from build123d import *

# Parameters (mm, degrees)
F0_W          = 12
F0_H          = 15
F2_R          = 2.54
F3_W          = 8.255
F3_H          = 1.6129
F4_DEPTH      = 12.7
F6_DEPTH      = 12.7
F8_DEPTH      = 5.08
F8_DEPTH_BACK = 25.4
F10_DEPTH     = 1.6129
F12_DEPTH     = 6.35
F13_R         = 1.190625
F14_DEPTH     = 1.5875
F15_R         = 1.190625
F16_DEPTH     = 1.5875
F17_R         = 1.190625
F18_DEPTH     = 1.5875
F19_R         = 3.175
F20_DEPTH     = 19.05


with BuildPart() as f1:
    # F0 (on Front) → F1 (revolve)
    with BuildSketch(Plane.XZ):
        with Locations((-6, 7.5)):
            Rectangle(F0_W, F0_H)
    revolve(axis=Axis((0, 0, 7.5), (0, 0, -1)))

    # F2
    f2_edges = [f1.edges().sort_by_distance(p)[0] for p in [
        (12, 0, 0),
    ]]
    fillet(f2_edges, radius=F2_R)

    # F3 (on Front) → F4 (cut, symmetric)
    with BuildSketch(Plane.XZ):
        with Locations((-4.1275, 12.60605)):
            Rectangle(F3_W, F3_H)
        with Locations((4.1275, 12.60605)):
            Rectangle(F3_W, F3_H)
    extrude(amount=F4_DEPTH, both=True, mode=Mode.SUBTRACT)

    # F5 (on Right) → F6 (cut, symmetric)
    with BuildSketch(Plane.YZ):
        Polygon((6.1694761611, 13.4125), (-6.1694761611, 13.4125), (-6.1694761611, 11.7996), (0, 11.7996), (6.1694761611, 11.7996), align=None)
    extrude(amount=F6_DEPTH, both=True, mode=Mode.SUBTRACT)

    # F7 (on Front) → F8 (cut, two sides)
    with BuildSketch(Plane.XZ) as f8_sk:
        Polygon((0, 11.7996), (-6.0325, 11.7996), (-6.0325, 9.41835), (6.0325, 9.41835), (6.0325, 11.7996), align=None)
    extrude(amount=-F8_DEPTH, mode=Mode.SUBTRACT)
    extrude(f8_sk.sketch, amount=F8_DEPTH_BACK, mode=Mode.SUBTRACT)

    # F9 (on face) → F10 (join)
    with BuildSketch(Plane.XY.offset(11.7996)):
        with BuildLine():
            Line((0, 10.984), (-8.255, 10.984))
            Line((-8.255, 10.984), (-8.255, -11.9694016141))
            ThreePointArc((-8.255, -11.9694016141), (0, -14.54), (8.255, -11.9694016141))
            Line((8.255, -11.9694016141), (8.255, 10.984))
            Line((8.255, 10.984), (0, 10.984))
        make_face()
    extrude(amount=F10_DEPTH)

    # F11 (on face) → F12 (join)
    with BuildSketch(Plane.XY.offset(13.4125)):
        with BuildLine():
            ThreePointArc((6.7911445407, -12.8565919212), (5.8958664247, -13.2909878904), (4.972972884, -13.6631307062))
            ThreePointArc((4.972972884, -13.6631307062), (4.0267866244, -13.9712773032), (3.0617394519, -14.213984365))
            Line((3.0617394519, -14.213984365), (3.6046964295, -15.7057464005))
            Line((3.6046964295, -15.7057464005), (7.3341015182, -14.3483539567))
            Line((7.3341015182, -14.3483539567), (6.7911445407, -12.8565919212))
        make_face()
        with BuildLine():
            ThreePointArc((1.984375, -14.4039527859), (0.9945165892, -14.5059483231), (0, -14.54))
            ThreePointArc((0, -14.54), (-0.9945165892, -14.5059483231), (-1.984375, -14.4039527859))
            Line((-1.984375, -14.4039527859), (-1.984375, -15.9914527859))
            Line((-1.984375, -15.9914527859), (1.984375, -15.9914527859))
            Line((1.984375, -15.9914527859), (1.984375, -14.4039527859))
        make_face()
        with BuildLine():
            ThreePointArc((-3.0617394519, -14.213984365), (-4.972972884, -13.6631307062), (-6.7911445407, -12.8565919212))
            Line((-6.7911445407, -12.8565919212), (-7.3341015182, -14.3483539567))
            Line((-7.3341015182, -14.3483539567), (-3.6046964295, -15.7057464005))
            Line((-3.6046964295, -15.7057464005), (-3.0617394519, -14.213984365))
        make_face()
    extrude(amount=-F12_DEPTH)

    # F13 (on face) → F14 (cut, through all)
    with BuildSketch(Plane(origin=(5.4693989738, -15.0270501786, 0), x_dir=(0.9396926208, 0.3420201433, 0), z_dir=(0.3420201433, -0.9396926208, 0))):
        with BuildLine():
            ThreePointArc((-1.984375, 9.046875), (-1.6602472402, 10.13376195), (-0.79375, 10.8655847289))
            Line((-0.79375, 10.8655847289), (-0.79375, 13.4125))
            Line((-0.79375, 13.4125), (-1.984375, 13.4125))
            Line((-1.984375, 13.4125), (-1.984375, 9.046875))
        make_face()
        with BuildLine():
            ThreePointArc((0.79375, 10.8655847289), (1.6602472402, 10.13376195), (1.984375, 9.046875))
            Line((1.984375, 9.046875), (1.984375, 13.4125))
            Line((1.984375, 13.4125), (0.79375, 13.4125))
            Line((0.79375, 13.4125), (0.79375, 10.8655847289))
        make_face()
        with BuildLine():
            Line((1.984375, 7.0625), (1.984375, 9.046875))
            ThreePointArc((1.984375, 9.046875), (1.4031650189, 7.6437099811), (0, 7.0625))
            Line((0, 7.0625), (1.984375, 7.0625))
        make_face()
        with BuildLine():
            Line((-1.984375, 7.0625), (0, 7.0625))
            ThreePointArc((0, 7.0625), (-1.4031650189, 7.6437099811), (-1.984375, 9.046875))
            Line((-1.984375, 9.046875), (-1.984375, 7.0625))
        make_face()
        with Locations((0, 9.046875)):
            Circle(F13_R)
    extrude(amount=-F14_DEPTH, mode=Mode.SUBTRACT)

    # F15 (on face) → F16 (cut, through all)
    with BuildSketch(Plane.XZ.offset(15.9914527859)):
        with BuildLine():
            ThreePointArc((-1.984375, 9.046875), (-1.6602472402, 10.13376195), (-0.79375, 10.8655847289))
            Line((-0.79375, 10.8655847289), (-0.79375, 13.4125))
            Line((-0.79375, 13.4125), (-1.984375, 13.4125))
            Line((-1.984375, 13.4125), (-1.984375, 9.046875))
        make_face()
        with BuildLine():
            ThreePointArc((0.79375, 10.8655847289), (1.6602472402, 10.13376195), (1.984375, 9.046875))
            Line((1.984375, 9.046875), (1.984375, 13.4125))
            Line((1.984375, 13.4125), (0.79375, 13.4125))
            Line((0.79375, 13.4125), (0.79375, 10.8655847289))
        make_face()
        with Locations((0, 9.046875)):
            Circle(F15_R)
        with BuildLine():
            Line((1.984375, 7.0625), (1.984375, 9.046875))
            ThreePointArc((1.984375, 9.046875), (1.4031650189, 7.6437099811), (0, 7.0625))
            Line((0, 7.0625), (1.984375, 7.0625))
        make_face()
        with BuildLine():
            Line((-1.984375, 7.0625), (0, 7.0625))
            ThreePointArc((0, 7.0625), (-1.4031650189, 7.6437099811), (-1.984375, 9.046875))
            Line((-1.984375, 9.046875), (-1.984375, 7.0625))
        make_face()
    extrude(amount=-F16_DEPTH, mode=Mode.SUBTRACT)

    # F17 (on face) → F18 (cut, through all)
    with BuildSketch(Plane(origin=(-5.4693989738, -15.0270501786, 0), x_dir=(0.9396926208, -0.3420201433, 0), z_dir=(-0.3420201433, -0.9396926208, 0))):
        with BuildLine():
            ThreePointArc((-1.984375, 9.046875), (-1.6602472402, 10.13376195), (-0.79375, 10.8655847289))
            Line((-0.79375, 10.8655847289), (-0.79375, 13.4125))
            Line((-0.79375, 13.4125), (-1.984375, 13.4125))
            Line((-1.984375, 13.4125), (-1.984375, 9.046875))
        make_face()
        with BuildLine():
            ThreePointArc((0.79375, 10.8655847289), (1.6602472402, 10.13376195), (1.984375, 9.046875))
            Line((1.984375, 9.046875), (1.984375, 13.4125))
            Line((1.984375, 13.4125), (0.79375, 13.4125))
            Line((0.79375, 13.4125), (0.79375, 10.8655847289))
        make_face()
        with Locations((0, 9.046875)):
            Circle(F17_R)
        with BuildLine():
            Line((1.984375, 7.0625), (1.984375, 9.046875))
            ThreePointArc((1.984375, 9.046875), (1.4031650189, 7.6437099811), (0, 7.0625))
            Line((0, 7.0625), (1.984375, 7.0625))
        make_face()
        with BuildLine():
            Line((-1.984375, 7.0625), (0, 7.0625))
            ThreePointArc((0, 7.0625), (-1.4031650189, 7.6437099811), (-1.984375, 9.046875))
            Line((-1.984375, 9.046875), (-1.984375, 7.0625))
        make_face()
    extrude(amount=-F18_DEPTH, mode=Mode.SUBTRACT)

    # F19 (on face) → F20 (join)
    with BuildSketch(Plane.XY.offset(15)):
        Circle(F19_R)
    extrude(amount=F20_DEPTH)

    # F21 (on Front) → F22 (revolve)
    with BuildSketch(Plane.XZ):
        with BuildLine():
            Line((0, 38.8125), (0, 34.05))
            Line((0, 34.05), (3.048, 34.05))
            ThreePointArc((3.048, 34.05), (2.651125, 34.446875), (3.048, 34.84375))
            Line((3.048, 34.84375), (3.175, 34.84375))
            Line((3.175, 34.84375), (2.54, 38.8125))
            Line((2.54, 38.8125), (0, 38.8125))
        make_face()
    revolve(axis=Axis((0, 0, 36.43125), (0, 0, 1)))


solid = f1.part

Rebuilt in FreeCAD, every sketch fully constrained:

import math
import FreeCAD as App
import Part
import Sketcher
Q = App.Units.Quantity


def edges_at(feature, points):
    """Names of the edges that pass closest to the given points."""
    edges = feature.Shape.Edges
    near = lambda p: min(range(len(edges)), key=lambda i: edges[i].distToShape(Part.Vertex(*p))[0])
    return sorted({f"Edge{near(p) + 1}" for p in points})


def add_polygon(sketch, points):
    """Adds a closed chain of lines whose ends are joined by coincident constraints."""
    first, n = sketch.GeometryCount, len(points)
    for a, b in zip(points, points[1:] + points[:1]):
        sketch.addGeometry(Part.LineSegment(App.Vector(*a, 0), App.Vector(*b, 0)), False)
    for i in range(n):
        sketch.addConstraint(Sketcher.Constraint("Coincident", first + i, 2, first + (i + 1) % n, 1))

doc = App.newDocument("Part")
body = doc.addObject("PartDesign::Body", "Body")

sketch1 = body.newObject("Sketcher::SketchObject", "Sketch")
sketch1.AttachmentSupport = (doc.getObject("XZ_Plane"), [""])
sketch1.MapMode = "FlatFace"
add_polygon(sketch1, [(-12, 15), (-12, 0), (0, 0), (0, 15)])
sketch1.addConstraint(Sketcher.Constraint("Vertical", 0))
sketch1.addConstraint(Sketcher.Constraint("Horizontal", 1))
sketch1.addConstraint(Sketcher.Constraint("Vertical", 2))
sketch1.addConstraint(Sketcher.Constraint("Horizontal", 3))
sketch1.addConstraint(Sketcher.Constraint("Coincident", 1, 2, -1, 1))
sketch1.addConstraint(Sketcher.Constraint("DistanceX", 1, 1, 1, 2, Q("12 mm")))
sketch1.addConstraint(Sketcher.Constraint("DistanceY", 0, 2, 0, 1, Q("15 mm")))
revolution = body.newObject("PartDesign::Revolution", "Revolution")
revolution.Profile = sketch1
revolution.ReferenceAxis = (sketch1, ["V_Axis"])
revolution.Angle = 360
doc.recompute()

fillet = body.newObject("PartDesign::Fillet", "Fillet")
fillet.Base = (revolution, edges_at(revolution, [(12, 0, 0)]))
fillet.Radius = Q("0.1 in")

sketch2 = body.newObject("Sketcher::SketchObject", "Sketch001")
sketch2.AttachmentSupport = (doc.getObject("XZ_Plane"), [""])
sketch2.MapMode = "FlatFace"
add_polygon(sketch2, [(-8.3, 13.4), (-8.3, 11.8), (8.3, 11.8), (8.3, 13.4)])
sketch2.addConstraint(Sketcher.Constraint("Vertical", 0))
sketch2.addConstraint(Sketcher.Constraint("Horizontal", 1))
sketch2.addConstraint(Sketcher.Constraint("Vertical", 2))
sketch2.addConstraint(Sketcher.Constraint("Horizontal", 3))
sketch2.addConstraint(Sketcher.Constraint("DistanceX", 1, 1, 1, 2, Q("0.65 in")))
sketch2.addConstraint(Sketcher.Constraint("DistanceY", 0, 2, 0, 1, Q("0.0635 in")))
sketch2.addConstraint(Sketcher.Constraint("DistanceX", 0, 2, -1, 1, Q("0.325 in")))
sketch2.addConstraint(Sketcher.Constraint("DistanceY", -1, 1, 0, 2, Q("11.7996 mm")))
pocket1 = body.newObject("PartDesign::Pocket", "Pocket")
pocket1.Profile = sketch2
pocket1.Length = Q("1 in")
pocket1.Midplane = True

sketch3 = body.newObject("Sketcher::SketchObject", "Sketch002")
sketch3.AttachmentSupport = (doc.getObject("YZ_Plane"), [""])
sketch3.MapMode = "FlatFace"
add_polygon(sketch3, [(6.2, 13.4), (-6.2, 13.4), (-6.2, 11.8), (6.2, 11.8)])
sketch3.addConstraint(Sketcher.Constraint("Horizontal", 0))
sketch3.addConstraint(Sketcher.Constraint("Vertical", 1))
sketch3.addConstraint(Sketcher.Constraint("Horizontal", 2))
sketch3.addConstraint(Sketcher.Constraint("Vertical", 3))
sketch3.addConstraint(Sketcher.Constraint("DistanceY", 1, 2, 1, 1, Q("0.0635 in")))
sketch3.addConstraint(Sketcher.Constraint("DistanceY", -1, 1, 0, 2, Q("13.4125 mm")))
sketch3.addConstraint(Sketcher.Constraint("DistanceX", 0, 2, 0, 1, Q("12.338952 mm")))
sketch3.addConstraint(Sketcher.Constraint("DistanceX", 0, 2, -1, 1, Q("6.169476 mm")))
pocket2 = body.newObject("PartDesign::Pocket", "Pocket001")
pocket2.Profile = sketch3
pocket2.Length = Q("1 in")
pocket2.Midplane = True

sketch4 = body.newObject("Sketcher::SketchObject", "Sketch003")
sketch4.AttachmentSupport = (doc.getObject("XZ_Plane"), [""])
sketch4.MapMode = "FlatFace"
add_polygon(sketch4, [(-6, 11.8), (-6, 9.4), (6, 9.4), (6, 11.8)])
sketch4.addConstraint(Sketcher.Constraint("Vertical", 0))
sketch4.addConstraint(Sketcher.Constraint("Horizontal", 1))
sketch4.addConstraint(Sketcher.Constraint("Vertical", 2))
sketch4.addConstraint(Sketcher.Constraint("Horizontal", 3))
sketch4.addConstraint(Sketcher.Constraint("DistanceX", 1, 1, 1, 2, Q("0.475 in")))
sketch4.addConstraint(Sketcher.Constraint("DistanceY", 0, 2, 0, 1, Q("0.09375 in")))
sketch4.addConstraint(Sketcher.Constraint("DistanceX", 0, 2, -1, 1, Q("0.2375 in")))
sketch4.addConstraint(Sketcher.Constraint("DistanceY", -1, 1, 2, 2, Q("11.7996 mm")))
pocket3 = body.newObject("PartDesign::Pocket", "Pocket002")
pocket3.Profile = sketch4
pocket3.Type = "TwoLengths"
pocket3.Length = Q("0.2 in")
pocket3.Length2 = Q("1 in")

sketch5 = body.newObject("Sketcher::SketchObject", "Sketch004")
sketch5.AttachmentSupport = (doc.getObject("XY_Plane"), [""])
sketch5.MapMode = "FlatFace"
sketch5.AttachmentOffset = App.Placement(App.Vector(0, 0, 11.7996), App.Rotation())
sketch5.addGeometry(Part.LineSegment(App.Vector(-8, 11, 0), App.Vector(-8, -12, 0)), False)
sketch5.addGeometry(Part.ArcOfCircle(Part.Circle(App.Vector(0, 0, 0), App.Vector(0, 0, 1), 15), math.radians(-125), math.radians(-55)), False)
sketch5.addGeometry(Part.LineSegment(App.Vector(8, -12, 0), App.Vector(8, 11, 0)), False)
sketch5.addGeometry(Part.LineSegment(App.Vector(8, 11, 0), App.Vector(-8, 11, 0)), False)
sketch5.addConstraint(Sketcher.Constraint("Coincident", 0, 2, 1, 1))
sketch5.addConstraint(Sketcher.Constraint("Coincident", 1, 2, 2, 1))
sketch5.addConstraint(Sketcher.Constraint("Coincident", 2, 2, 3, 1))
sketch5.addConstraint(Sketcher.Constraint("Coincident", 3, 2, 0, 1))
sketch5.addConstraint(Sketcher.Constraint("Vertical", 0))
sketch5.addConstraint(Sketcher.Constraint("Vertical", 2))
sketch5.addConstraint(Sketcher.Constraint("Horizontal", 3))
sketch5.addConstraint(Sketcher.Constraint("Coincident", 1, 3, -1, 1))
sketch5.addConstraint(Sketcher.Constraint("Horizontal", 0, 2, 1, 2))
sketch5.addConstraint(Sketcher.Constraint("DistanceX", 3, 2, 3, 1, Q("0.65 in")))
sketch5.addConstraint(Sketcher.Constraint("Radius", 1, Q("14.54 mm")))
sketch5.addConstraint(Sketcher.Constraint("DistanceY", 0, 2, 0, 1, Q("22.953402 mm")))
pad1 = body.newObject("PartDesign::Pad", "Pad")
pad1.Profile = sketch5
pad1.Length = Q("0.0635 in")

sketch6 = body.newObject("Sketcher::SketchObject", "Sketch005")
sketch6.AttachmentSupport = (doc.getObject("XY_Plane"), [""])
sketch6.MapMode = "FlatFace"
sketch6.AttachmentOffset = App.Placement(App.Vector(0, 0, 13.4125), App.Rotation())
sketch6.addGeometry(Part.ArcOfCircle(Part.Circle(App.Vector(0, 0, 0), App.Vector(0, 0, 1), 14.5), math.radians(-70), math.radians(-62.16)), False)
sketch6.addGeometry(Part.ArcOfCircle(Part.Circle(App.Vector(0, 0, 0), App.Vector(0, 0, 1), 14.5), math.radians(-77.84), math.radians(-70)), False)
sketch6.addGeometry(Part.LineSegment(App.Vector(3.1, -14.2, 0), App.Vector(3.6, -15.7, 0)), False)
sketch6.addGeometry(Part.LineSegment(App.Vector(3.6, -15.7, 0), App.Vector(7.3, -14.3, 0)), False)
sketch6.addGeometry(Part.LineSegment(App.Vector(7.3, -14.3, 0), App.Vector(6.8, -12.9, 0)), False)
sketch6.addGeometry(Part.ArcOfCircle(Part.Circle(App.Vector(0, 0, 0), App.Vector(0, 0, 1), 14.5), math.radians(-90), math.radians(-82.16)), False)
sketch6.addGeometry(Part.ArcOfCircle(Part.Circle(App.Vector(0, 0, 0), App.Vector(0, 0, 1), 14.5), math.radians(-97.84), math.radians(-90)), False)
sketch6.addGeometry(Part.LineSegment(App.Vector(-2, -14.4, 0), App.Vector(-2, -16, 0)), False)
sketch6.addGeometry(Part.LineSegment(App.Vector(-2, -16, 0), App.Vector(2, -16, 0)), False)
sketch6.addGeometry(Part.LineSegment(App.Vector(2, -16, 0), App.Vector(2, -14.4, 0)), False)
sketch6.addGeometry(Part.ArcOfCircle(Part.Circle(App.Vector(0, 0, 0), App.Vector(0, 0, 1), 14.5), math.radians(-117.84), math.radians(-102.16)), False)
sketch6.addGeometry(Part.LineSegment(App.Vector(-6.8, -12.9, 0), App.Vector(-7.3, -14.3, 0)), False)
sketch6.addGeometry(Part.LineSegment(App.Vector(-7.3, -14.3, 0), App.Vector(-3.6, -15.7, 0)), False)
sketch6.addGeometry(Part.LineSegment(App.Vector(-3.6, -15.7, 0), App.Vector(-3.1, -14.2, 0)), False)
sketch6.addConstraint(Sketcher.Constraint("Tangent", 0, 1, 1, 2))
sketch6.addConstraint(Sketcher.Constraint("Coincident", 1, 1, 2, 1))
sketch6.addConstraint(Sketcher.Constraint("Coincident", 2, 2, 3, 1))
sketch6.addConstraint(Sketcher.Constraint("Coincident", 3, 2, 4, 1))
sketch6.addConstraint(Sketcher.Constraint("Coincident", 4, 2, 0, 2))
sketch6.addConstraint(Sketcher.Constraint("Tangent", 5, 1, 6, 2))
sketch6.addConstraint(Sketcher.Constraint("Coincident", 6, 1, 7, 1))
sketch6.addConstraint(Sketcher.Constraint("Coincident", 7, 2, 8, 1))
sketch6.addConstraint(Sketcher.Constraint("Coincident", 8, 2, 9, 1))
sketch6.addConstraint(Sketcher.Constraint("Coincident", 9, 2, 5, 2))
sketch6.addConstraint(Sketcher.Constraint("Coincident", 10, 1, 11, 1))
sketch6.addConstraint(Sketcher.Constraint("Coincident", 11, 2, 12, 1))
sketch6.addConstraint(Sketcher.Constraint("Coincident", 12, 2, 13, 1))
sketch6.addConstraint(Sketcher.Constraint("Coincident", 13, 2, 10, 2))
sketch6.addConstraint(Sketcher.Constraint("Vertical", 7))
sketch6.addConstraint(Sketcher.Constraint("Horizontal", 8))
sketch6.addConstraint(Sketcher.Constraint("Vertical", 9))
sketch6.addConstraint(Sketcher.Constraint("Coincident", 0, 3, -1, 1))
sketch6.addConstraint(Sketcher.Constraint("Coincident", 5, 3, -1, 1))
sketch6.addConstraint(Sketcher.Constraint("Coincident", 10, 3, -1, 1))
sketch6.addConstraint(Sketcher.Constraint("Equal", 0, 1))
sketch6.addConstraint(Sketcher.Constraint("Equal", 1, 5))
sketch6.addConstraint(Sketcher.Constraint("Equal", 5, 6))
sketch6.addConstraint(Sketcher.Constraint("Equal", 6, 10))
sketch6.addConstraint(Sketcher.Constraint("Symmetric", 3, 2, 11, 2, -2))
sketch6.addConstraint(Sketcher.Constraint("Symmetric", 2, 2, 12, 2, -2))
sketch6.addConstraint(Sketcher.Constraint("PointOnObject", 5, 1, -2))
sketch6.addConstraint(Sketcher.Constraint("Perpendicular", 2, 3))
sketch6.addConstraint(Sketcher.Constraint("Perpendicular", 3, 4))
sketch6.addConstraint(Sketcher.Constraint("Perpendicular", 11, 12))
sketch6.addConstraint(Sketcher.Constraint("Perpendicular", 12, 13))
sketch6.addConstraint(Sketcher.Constraint("Horizontal", 6, 1, 9, 2))
sketch6.addConstraint(Sketcher.Constraint("Equal", 2, 4))
sketch6.addConstraint(Sketcher.Constraint("Angle", 2, Q("-70 deg")))
sketch6.addConstraint(Sketcher.Constraint("DistanceX", 8, 1, 8, 2, Q("0.15625 in")))
sketch6.addConstraint(Sketcher.Constraint("DistanceY", 7, 2, 7, 1, Q("0.0625 in")))
sketch6.addConstraint(Sketcher.Constraint("Radius", 0, Q("14.54 mm")))
sketch6.addConstraint(Sketcher.Constraint("Distance", 2, Q("0.0625 in")))
sketch6.addConstraint(Sketcher.Constraint("Distance", 3, Q("0.15625 in")))
sketch6.addConstraint(Sketcher.Constraint("DistanceY", 0, 1, -1, 1, Q("13.663131 mm")))
pad2 = body.newObject("PartDesign::Pad", "Pad001")
pad2.Profile = sketch6
pad2.Length = Q("0.25 in")
pad2.Reversed = True

sketch7 = body.newObject("Sketcher::SketchObject", "Sketch006")
sketch7.Placement = App.Placement(App.Vector(5.469399, -15.02705, 0), App.Rotation(App.Vector(0.939692621, 0.342020143, 0), App.Vector(0, 0, 1), App.Vector(0.342020143, -0.939692621, 0), "ZXY"))
sketch7.addGeometry(Part.ArcOfCircle(Part.Circle(App.Vector(0, 9, 0), App.Vector(0, 0, 1), 2), math.radians(114), math.radians(180)), False)
sketch7.addGeometry(Part.LineSegment(App.Vector(-0.8, 10.9, 0), App.Vector(-0.8, 13.4, 0)), False)
sketch7.addGeometry(Part.LineSegment(App.Vector(-0.8, 13.4, 0), App.Vector(-2, 13.4, 0)), False)
sketch7.addGeometry(Part.LineSegment(App.Vector(-2, 13.4, 0), App.Vector(-2, 9, 0)), False)
sketch7.addGeometry(Part.ArcOfCircle(Part.Circle(App.Vector(0, 9, 0), App.Vector(0, 0, 1), 2), math.radians(0), math.radians(66)), False)
sketch7.addGeometry(Part.LineSegment(App.Vector(2, 9, 0), App.Vector(2, 13.4, 0)), False)
sketch7.addGeometry(Part.LineSegment(App.Vector(2, 13.4, 0), App.Vector(0.8, 13.4, 0)), False)
sketch7.addGeometry(Part.LineSegment(App.Vector(0.8, 13.4, 0), App.Vector(0.8, 10.9, 0)), False)
sketch7.addGeometry(Part.LineSegment(App.Vector(2, 7.1, 0), App.Vector(2, 9, 0)), False)
sketch7.addGeometry(Part.ArcOfCircle(Part.Circle(App.Vector(0, 9, 0), App.Vector(0, 0, 1), 2), math.radians(-90), math.radians(0)), False)
sketch7.addGeometry(Part.LineSegment(App.Vector(0, 7.1, 0), App.Vector(2, 7.1, 0)), False)
sketch7.addGeometry(Part.LineSegment(App.Vector(-2, 7.1, 0), App.Vector(0, 7.1, 0)), False)
sketch7.addGeometry(Part.ArcOfCircle(Part.Circle(App.Vector(0, 9, 0), App.Vector(0, 0, 1), 2), math.radians(180), math.radians(270)), False)
sketch7.addGeometry(Part.LineSegment(App.Vector(-2, 9, 0), App.Vector(-2, 7.1, 0)), False)
sketch7.addGeometry(Part.Circle(App.Vector(0, 9, 0), App.Vector(0, 0, 1), 1.2), False)
sketch7.addConstraint(Sketcher.Constraint("Coincident", 0, 1, 1, 1))
sketch7.addConstraint(Sketcher.Constraint("Coincident", 1, 2, 2, 1))
sketch7.addConstraint(Sketcher.Constraint("Coincident", 2, 2, 3, 1))
sketch7.addConstraint(Sketcher.Constraint("Tangent", 3, 2, 0, 2))
sketch7.addConstraint(Sketcher.Constraint("Tangent", 4, 1, 5, 1))
sketch7.addConstraint(Sketcher.Constraint("Coincident", 5, 2, 6, 1))
sketch7.addConstraint(Sketcher.Constraint("Coincident", 6, 2, 7, 1))
sketch7.addConstraint(Sketcher.Constraint("Coincident", 7, 2, 4, 2))
sketch7.addConstraint(Sketcher.Constraint("Tangent", 8, 2, 9, 2))
sketch7.addConstraint(Sketcher.Constraint("Tangent", 9, 1, 10, 1))
sketch7.addConstraint(Sketcher.Constraint("Coincident", 10, 2, 8, 1))
sketch7.addConstraint(Sketcher.Constraint("Tangent", 11, 2, 12, 2))
sketch7.addConstraint(Sketcher.Constraint("Tangent", 12, 1, 13, 1))
sketch7.addConstraint(Sketcher.Constraint("Coincident", 13, 2, 11, 1))
sketch7.addConstraint(Sketcher.Constraint("Vertical", 1))
sketch7.addConstraint(Sketcher.Constraint("Horizontal", 2))
sketch7.addConstraint(Sketcher.Constraint("Vertical", 3))
sketch7.addConstraint(Sketcher.Constraint("Vertical", 5))
sketch7.addConstraint(Sketcher.Constraint("Horizontal", 6))
sketch7.addConstraint(Sketcher.Constraint("Vertical", 7))
sketch7.addConstraint(Sketcher.Constraint("Vertical", 8))
sketch7.addConstraint(Sketcher.Constraint("Horizontal", 10))
sketch7.addConstraint(Sketcher.Constraint("Horizontal", 11))
sketch7.addConstraint(Sketcher.Constraint("Vertical", 13))
sketch7.addConstraint(Sketcher.Constraint("Coincident", 4, 3, 0, 3))
sketch7.addConstraint(Sketcher.Constraint("Coincident", 9, 3, 0, 3))
sketch7.addConstraint(Sketcher.Constraint("Coincident", 12, 3, 0, 3))
sketch7.addConstraint(Sketcher.Constraint("Coincident", 14, 3, 0, 3))
sketch7.addConstraint(Sketcher.Constraint("Equal", 0, 4))
sketch7.addConstraint(Sketcher.Constraint("Equal", 4, 9))
sketch7.addConstraint(Sketcher.Constraint("Equal", 9, 12))
sketch7.addConstraint(Sketcher.Constraint("Symmetric", 2, 2, 5, 2, -2))
sketch7.addConstraint(Sketcher.Constraint("Horizontal", 0, 1, 7, 2))
sketch7.addConstraint(Sketcher.Constraint("Diameter", 14, Q("0.09375 in")))
sketch7.addConstraint(Sketcher.Constraint("Radius", 0, Q("0.078125 in")))
sketch7.addConstraint(Sketcher.Constraint("DistanceX", 2, 2, 2, 1, Q("0.046875 in")))
sketch7.addConstraint(Sketcher.Constraint("DistanceY", 3, 2, 3, 1, Q("0.171875 in")))
sketch7.addConstraint(Sketcher.Constraint("DistanceY", -1, 1, 1, 2, Q("13.4125 mm")))
pocket4 = body.newObject("PartDesign::Pocket", "Pocket003")
pocket4.Profile = sketch7
pocket4.Length = Q("0.0625 in")

sketch8 = body.newObject("Sketcher::SketchObject", "Sketch007")
sketch8.AttachmentSupport = (doc.getObject("XZ_Plane"), [""])
sketch8.MapMode = "FlatFace"
sketch8.AttachmentOffset = App.Placement(App.Vector(0, 0, 15.991453), App.Rotation())
sketch8.addGeometry(Part.ArcOfCircle(Part.Circle(App.Vector(0, 9, 0), App.Vector(0, 0, 1), 2), math.radians(114), math.radians(180)), False)
sketch8.addGeometry(Part.LineSegment(App.Vector(-0.8, 10.9, 0), App.Vector(-0.8, 13.4, 0)), False)
sketch8.addGeometry(Part.LineSegment(App.Vector(-0.8, 13.4, 0), App.Vector(-2, 13.4, 0)), False)
sketch8.addGeometry(Part.LineSegment(App.Vector(-2, 13.4, 0), App.Vector(-2, 9, 0)), False)
sketch8.addGeometry(Part.ArcOfCircle(Part.Circle(App.Vector(0, 9, 0), App.Vector(0, 0, 1), 2), math.radians(0), math.radians(66)), False)
sketch8.addGeometry(Part.LineSegment(App.Vector(2, 9, 0), App.Vector(2, 13.4, 0)), False)
sketch8.addGeometry(Part.LineSegment(App.Vector(2, 13.4, 0), App.Vector(0.8, 13.4, 0)), False)
sketch8.addGeometry(Part.LineSegment(App.Vector(0.8, 13.4, 0), App.Vector(0.8, 10.9, 0)), False)
sketch8.addGeometry(Part.Circle(App.Vector(0, 9, 0), App.Vector(0, 0, 1), 1.2), False)
sketch8.addGeometry(Part.LineSegment(App.Vector(2, 7.1, 0), App.Vector(2, 9, 0)), False)
sketch8.addGeometry(Part.ArcOfCircle(Part.Circle(App.Vector(0, 9, 0), App.Vector(0, 0, 1), 2), math.radians(-90), math.radians(0)), False)
sketch8.addGeometry(Part.LineSegment(App.Vector(0, 7.1, 0), App.Vector(2, 7.1, 0)), False)
sketch8.addGeometry(Part.LineSegment(App.Vector(-2, 7.1, 0), App.Vector(0, 7.1, 0)), False)
sketch8.addGeometry(Part.ArcOfCircle(Part.Circle(App.Vector(0, 9, 0), App.Vector(0, 0, 1), 2), math.radians(180), math.radians(270)), False)
sketch8.addGeometry(Part.LineSegment(App.Vector(-2, 9, 0), App.Vector(-2, 7.1, 0)), False)
sketch8.addConstraint(Sketcher.Constraint("Coincident", 0, 1, 1, 1))
sketch8.addConstraint(Sketcher.Constraint("Coincident", 1, 2, 2, 1))
sketch8.addConstraint(Sketcher.Constraint("Coincident", 2, 2, 3, 1))
sketch8.addConstraint(Sketcher.Constraint("Tangent", 3, 2, 0, 2))
sketch8.addConstraint(Sketcher.Constraint("Tangent", 4, 1, 5, 1))
sketch8.addConstraint(Sketcher.Constraint("Coincident", 5, 2, 6, 1))
sketch8.addConstraint(Sketcher.Constraint("Coincident", 6, 2, 7, 1))
sketch8.addConstraint(Sketcher.Constraint("Coincident", 7, 2, 4, 2))
sketch8.addConstraint(Sketcher.Constraint("Tangent", 9, 2, 10, 2))
sketch8.addConstraint(Sketcher.Constraint("Tangent", 10, 1, 11, 1))
sketch8.addConstraint(Sketcher.Constraint("Coincident", 11, 2, 9, 1))
sketch8.addConstraint(Sketcher.Constraint("Tangent", 12, 2, 13, 2))
sketch8.addConstraint(Sketcher.Constraint("Tangent", 13, 1, 14, 1))
sketch8.addConstraint(Sketcher.Constraint("Coincident", 14, 2, 12, 1))
sketch8.addConstraint(Sketcher.Constraint("Vertical", 1))
sketch8.addConstraint(Sketcher.Constraint("Horizontal", 2))
sketch8.addConstraint(Sketcher.Constraint("Vertical", 3))
sketch8.addConstraint(Sketcher.Constraint("Vertical", 5))
sketch8.addConstraint(Sketcher.Constraint("Horizontal", 6))
sketch8.addConstraint(Sketcher.Constraint("Vertical", 7))
sketch8.addConstraint(Sketcher.Constraint("Vertical", 9))
sketch8.addConstraint(Sketcher.Constraint("Horizontal", 11))
sketch8.addConstraint(Sketcher.Constraint("Horizontal", 12))
sketch8.addConstraint(Sketcher.Constraint("Vertical", 14))
sketch8.addConstraint(Sketcher.Constraint("Coincident", 4, 3, 0, 3))
sketch8.addConstraint(Sketcher.Constraint("Coincident", 8, 3, 0, 3))
sketch8.addConstraint(Sketcher.Constraint("Coincident", 10, 3, 0, 3))
sketch8.addConstraint(Sketcher.Constraint("Coincident", 13, 3, 0, 3))
sketch8.addConstraint(Sketcher.Constraint("Equal", 0, 4))
sketch8.addConstraint(Sketcher.Constraint("Equal", 4, 10))
sketch8.addConstraint(Sketcher.Constraint("Equal", 10, 13))
sketch8.addConstraint(Sketcher.Constraint("Symmetric", 2, 2, 5, 2, -2))
sketch8.addConstraint(Sketcher.Constraint("Horizontal", 0, 1, 7, 2))
sketch8.addConstraint(Sketcher.Constraint("Diameter", 8, Q("0.09375 in")))
sketch8.addConstraint(Sketcher.Constraint("Radius", 0, Q("0.078125 in")))
sketch8.addConstraint(Sketcher.Constraint("DistanceX", 2, 2, 2, 1, Q("0.046875 in")))
sketch8.addConstraint(Sketcher.Constraint("DistanceY", 3, 2, 3, 1, Q("0.171875 in")))
sketch8.addConstraint(Sketcher.Constraint("DistanceY", -1, 1, 1, 2, Q("13.4125 mm")))
pocket5 = body.newObject("PartDesign::Pocket", "Pocket004")
pocket5.Profile = sketch8
pocket5.Length = Q("0.0625 in")

sketch9 = body.newObject("Sketcher::SketchObject", "Sketch008")
sketch9.Placement = App.Placement(App.Vector(-5.469399, -15.02705, 0), App.Rotation(App.Vector(0.939692621, -0.342020143, 0), App.Vector(0, 0, 1), App.Vector(-0.342020143, -0.939692621, 0), "ZXY"))
sketch9.addGeometry(Part.ArcOfCircle(Part.Circle(App.Vector(0, 9, 0), App.Vector(0, 0, 1), 2), math.radians(114), math.radians(180)), False)
sketch9.addGeometry(Part.LineSegment(App.Vector(-0.8, 10.9, 0), App.Vector(-0.8, 13.4, 0)), False)
sketch9.addGeometry(Part.LineSegment(App.Vector(-0.8, 13.4, 0), App.Vector(-2, 13.4, 0)), False)
sketch9.addGeometry(Part.LineSegment(App.Vector(-2, 13.4, 0), App.Vector(-2, 9, 0)), False)
sketch9.addGeometry(Part.ArcOfCircle(Part.Circle(App.Vector(0, 9, 0), App.Vector(0, 0, 1), 2), math.radians(0), math.radians(66)), False)
sketch9.addGeometry(Part.LineSegment(App.Vector(2, 9, 0), App.Vector(2, 13.4, 0)), False)
sketch9.addGeometry(Part.LineSegment(App.Vector(2, 13.4, 0), App.Vector(0.8, 13.4, 0)), False)
sketch9.addGeometry(Part.LineSegment(App.Vector(0.8, 13.4, 0), App.Vector(0.8, 10.9, 0)), False)
sketch9.addGeometry(Part.Circle(App.Vector(0, 9, 0), App.Vector(0, 0, 1), 1.2), False)
sketch9.addGeometry(Part.LineSegment(App.Vector(2, 7.1, 0), App.Vector(2, 9, 0)), False)
sketch9.addGeometry(Part.ArcOfCircle(Part.Circle(App.Vector(0, 9, 0), App.Vector(0, 0, 1), 2), math.radians(-90), math.radians(0)), False)
sketch9.addGeometry(Part.LineSegment(App.Vector(0, 7.1, 0), App.Vector(2, 7.1, 0)), False)
sketch9.addGeometry(Part.LineSegment(App.Vector(-2, 7.1, 0), App.Vector(0, 7.1, 0)), False)
sketch9.addGeometry(Part.ArcOfCircle(Part.Circle(App.Vector(0, 9, 0), App.Vector(0, 0, 1), 2), math.radians(180), math.radians(270)), False)
sketch9.addGeometry(Part.LineSegment(App.Vector(-2, 9, 0), App.Vector(-2, 7.1, 0)), False)
sketch9.addConstraint(Sketcher.Constraint("Coincident", 0, 1, 1, 1))
sketch9.addConstraint(Sketcher.Constraint("Coincident", 1, 2, 2, 1))
sketch9.addConstraint(Sketcher.Constraint("Coincident", 2, 2, 3, 1))
sketch9.addConstraint(Sketcher.Constraint("Tangent", 3, 2, 0, 2))
sketch9.addConstraint(Sketcher.Constraint("Tangent", 4, 1, 5, 1))
sketch9.addConstraint(Sketcher.Constraint("Coincident", 5, 2, 6, 1))
sketch9.addConstraint(Sketcher.Constraint("Coincident", 6, 2, 7, 1))
sketch9.addConstraint(Sketcher.Constraint("Coincident", 7, 2, 4, 2))
sketch9.addConstraint(Sketcher.Constraint("Tangent", 9, 2, 10, 2))
sketch9.addConstraint(Sketcher.Constraint("Tangent", 10, 1, 11, 1))
sketch9.addConstraint(Sketcher.Constraint("Coincident", 11, 2, 9, 1))
sketch9.addConstraint(Sketcher.Constraint("Tangent", 12, 2, 13, 2))
sketch9.addConstraint(Sketcher.Constraint("Tangent", 13, 1, 14, 1))
sketch9.addConstraint(Sketcher.Constraint("Coincident", 14, 2, 12, 1))
sketch9.addConstraint(Sketcher.Constraint("Vertical", 1))
sketch9.addConstraint(Sketcher.Constraint("Horizontal", 2))
sketch9.addConstraint(Sketcher.Constraint("Vertical", 3))
sketch9.addConstraint(Sketcher.Constraint("Vertical", 5))
sketch9.addConstraint(Sketcher.Constraint("Horizontal", 6))
sketch9.addConstraint(Sketcher.Constraint("Vertical", 7))
sketch9.addConstraint(Sketcher.Constraint("Vertical", 9))
sketch9.addConstraint(Sketcher.Constraint("Horizontal", 11))
sketch9.addConstraint(Sketcher.Constraint("Horizontal", 12))
sketch9.addConstraint(Sketcher.Constraint("Vertical", 14))
sketch9.addConstraint(Sketcher.Constraint("Coincident", 4, 3, 0, 3))
sketch9.addConstraint(Sketcher.Constraint("Coincident", 8, 3, 0, 3))
sketch9.addConstraint(Sketcher.Constraint("Coincident", 10, 3, 0, 3))
sketch9.addConstraint(Sketcher.Constraint("Coincident", 13, 3, 0, 3))
sketch9.addConstraint(Sketcher.Constraint("Equal", 0, 4))
sketch9.addConstraint(Sketcher.Constraint("Equal", 4, 10))
sketch9.addConstraint(Sketcher.Constraint("Equal", 10, 13))
sketch9.addConstraint(Sketcher.Constraint("Symmetric", 2, 2, 5, 2, -2))
sketch9.addConstraint(Sketcher.Constraint("Horizontal", 0, 1, 7, 2))
sketch9.addConstraint(Sketcher.Constraint("Diameter", 8, Q("0.09375 in")))
sketch9.addConstraint(Sketcher.Constraint("Radius", 0, Q("0.078125 in")))
sketch9.addConstraint(Sketcher.Constraint("DistanceX", 2, 2, 2, 1, Q("0.046875 in")))
sketch9.addConstraint(Sketcher.Constraint("DistanceY", 3, 2, 3, 1, Q("0.171875 in")))
sketch9.addConstraint(Sketcher.Constraint("DistanceY", -1, 1, 1, 2, Q("13.4125 mm")))
pocket6 = body.newObject("PartDesign::Pocket", "Pocket005")
pocket6.Profile = sketch9
pocket6.Length = Q("0.0625 in")

sketch10 = body.newObject("Sketcher::SketchObject", "Sketch009")
sketch10.AttachmentSupport = (doc.getObject("XY_Plane"), [""])
sketch10.MapMode = "FlatFace"
sketch10.AttachmentOffset = App.Placement(App.Vector(0, 0, 15), App.Rotation())
sketch10.addGeometry(Part.Circle(App.Vector(0, 0, 0), App.Vector(0, 0, 1), 3.2), False)
sketch10.addConstraint(Sketcher.Constraint("Coincident", 0, 3, -1, 1))
sketch10.addConstraint(Sketcher.Constraint("Diameter", 0, Q("0.25 in")))
pad3 = body.newObject("PartDesign::Pad", "Pad002")
pad3.Profile = sketch10
pad3.Length = Q("0.75 in")

sketch11 = body.newObject("Sketcher::SketchObject", "Sketch010")
sketch11.AttachmentSupport = (doc.getObject("XZ_Plane"), [""])
sketch11.MapMode = "FlatFace"
sketch11.addGeometry(Part.LineSegment(App.Vector(0, 38.81, 0), App.Vector(0, 34.05, 0)), False)
sketch11.addGeometry(Part.LineSegment(App.Vector(0, 34.05, 0), App.Vector(3.05, 34.05, 0)), False)
sketch11.addGeometry(Part.ArcOfCircle(Part.Circle(App.Vector(3.05, 34.45, 0), App.Vector(0, 0, 1), 0.4), math.radians(90), math.radians(270)), False)
sketch11.addGeometry(Part.LineSegment(App.Vector(3.05, 34.84, 0), App.Vector(3.17, 34.84, 0)), False)
sketch11.addGeometry(Part.LineSegment(App.Vector(3.17, 34.84, 0), App.Vector(2.54, 38.81, 0)), False)
sketch11.addGeometry(Part.LineSegment(App.Vector(2.54, 38.81, 0), App.Vector(0, 38.81, 0)), False)
sketch11.addConstraint(Sketcher.Constraint("Coincident", 0, 2, 1, 1))
sketch11.addConstraint(Sketcher.Constraint("Tangent", 1, 2, 2, 2))
sketch11.addConstraint(Sketcher.Constraint("Tangent", 2, 1, 3, 1))
sketch11.addConstraint(Sketcher.Constraint("Coincident", 3, 2, 4, 1))
sketch11.addConstraint(Sketcher.Constraint("Coincident", 4, 2, 5, 1))
sketch11.addConstraint(Sketcher.Constraint("Coincident", 5, 2, 0, 1))
sketch11.addConstraint(Sketcher.Constraint("Vertical", 0))
sketch11.addConstraint(Sketcher.Constraint("Horizontal", 1))
sketch11.addConstraint(Sketcher.Constraint("Horizontal", 3))
sketch11.addConstraint(Sketcher.Constraint("Horizontal", 5))
sketch11.addConstraint(Sketcher.Constraint("PointOnObject", 0, 2, -2))
sketch11.addConstraint(Sketcher.Constraint("DistanceX", 5, 2, 5, 1, Q("0.1 in")))
sketch11.addConstraint(Sketcher.Constraint("Radius", 2, Q("0.015625 in")))
sketch11.addConstraint(Sketcher.Constraint("DistanceX", 1, 1, 1, 2, Q("0.12 in")))
sketch11.addConstraint(Sketcher.Constraint("DistanceX", 3, 1, 3, 2, Q("0.005 in")))
sketch11.addConstraint(Sketcher.Constraint("DistanceY", 0, 2, 0, 1, Q("0.1875 in")))
sketch11.addConstraint(Sketcher.Constraint("DistanceY", -1, 1, 0, 2, Q("34.05 mm")))
revolution2 = body.newObject("PartDesign::Revolution", "Revolution001")
revolution2.Profile = sketch11
revolution2.ReferenceAxis = (sketch11, ["V_Axis"])
revolution2.Angle = 360

doc.recompute()
